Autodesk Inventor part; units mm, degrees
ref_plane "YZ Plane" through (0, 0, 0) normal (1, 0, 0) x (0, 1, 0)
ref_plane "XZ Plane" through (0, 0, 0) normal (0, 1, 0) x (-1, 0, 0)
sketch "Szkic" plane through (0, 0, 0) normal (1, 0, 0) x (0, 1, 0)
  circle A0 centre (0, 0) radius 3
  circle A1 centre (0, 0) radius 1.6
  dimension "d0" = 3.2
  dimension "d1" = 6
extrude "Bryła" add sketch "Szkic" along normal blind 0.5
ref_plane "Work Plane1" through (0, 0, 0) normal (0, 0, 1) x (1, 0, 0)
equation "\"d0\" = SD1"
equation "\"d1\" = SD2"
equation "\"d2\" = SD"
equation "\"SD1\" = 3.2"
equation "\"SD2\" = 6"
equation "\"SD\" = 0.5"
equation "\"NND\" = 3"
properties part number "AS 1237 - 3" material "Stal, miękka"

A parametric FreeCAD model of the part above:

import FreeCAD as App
import Part
import Sketcher

V = App.Vector

doc = App.newDocument("Part")
body = doc.addObject("PartDesign::Body", "Body")

# Sketch on YZ plane
sketch1 = body.newObject("Sketcher::SketchObject", "Sketch")
sketch1.AttachmentSupport = (doc.getObject("YZ_Plane"), [""])
sketch1.MapMode = "FlatFace"
sketch1.addGeometry([
    Part.Circle(V(0, 0, 0), V(0, 0, 1), 3),
    Part.Circle(V(0, 0, 0), V(0, 0, 1), 1.6),
], False)
sketch1.addConstraint([
    Sketcher.Constraint("Coincident", 0, 3, -1, 1),
    Sketcher.Constraint("Coincident", 1, 3, -1, 1),
    Sketcher.Constraint("Diameter", 0, 6.0),
    Sketcher.Constraint("Diameter", 1, 3.2),
])
pad1 = body.newObject("PartDesign::Pad", "Pad")
pad1.Profile = sketch1
pad1.Length = 0.5

doc.recompute()
